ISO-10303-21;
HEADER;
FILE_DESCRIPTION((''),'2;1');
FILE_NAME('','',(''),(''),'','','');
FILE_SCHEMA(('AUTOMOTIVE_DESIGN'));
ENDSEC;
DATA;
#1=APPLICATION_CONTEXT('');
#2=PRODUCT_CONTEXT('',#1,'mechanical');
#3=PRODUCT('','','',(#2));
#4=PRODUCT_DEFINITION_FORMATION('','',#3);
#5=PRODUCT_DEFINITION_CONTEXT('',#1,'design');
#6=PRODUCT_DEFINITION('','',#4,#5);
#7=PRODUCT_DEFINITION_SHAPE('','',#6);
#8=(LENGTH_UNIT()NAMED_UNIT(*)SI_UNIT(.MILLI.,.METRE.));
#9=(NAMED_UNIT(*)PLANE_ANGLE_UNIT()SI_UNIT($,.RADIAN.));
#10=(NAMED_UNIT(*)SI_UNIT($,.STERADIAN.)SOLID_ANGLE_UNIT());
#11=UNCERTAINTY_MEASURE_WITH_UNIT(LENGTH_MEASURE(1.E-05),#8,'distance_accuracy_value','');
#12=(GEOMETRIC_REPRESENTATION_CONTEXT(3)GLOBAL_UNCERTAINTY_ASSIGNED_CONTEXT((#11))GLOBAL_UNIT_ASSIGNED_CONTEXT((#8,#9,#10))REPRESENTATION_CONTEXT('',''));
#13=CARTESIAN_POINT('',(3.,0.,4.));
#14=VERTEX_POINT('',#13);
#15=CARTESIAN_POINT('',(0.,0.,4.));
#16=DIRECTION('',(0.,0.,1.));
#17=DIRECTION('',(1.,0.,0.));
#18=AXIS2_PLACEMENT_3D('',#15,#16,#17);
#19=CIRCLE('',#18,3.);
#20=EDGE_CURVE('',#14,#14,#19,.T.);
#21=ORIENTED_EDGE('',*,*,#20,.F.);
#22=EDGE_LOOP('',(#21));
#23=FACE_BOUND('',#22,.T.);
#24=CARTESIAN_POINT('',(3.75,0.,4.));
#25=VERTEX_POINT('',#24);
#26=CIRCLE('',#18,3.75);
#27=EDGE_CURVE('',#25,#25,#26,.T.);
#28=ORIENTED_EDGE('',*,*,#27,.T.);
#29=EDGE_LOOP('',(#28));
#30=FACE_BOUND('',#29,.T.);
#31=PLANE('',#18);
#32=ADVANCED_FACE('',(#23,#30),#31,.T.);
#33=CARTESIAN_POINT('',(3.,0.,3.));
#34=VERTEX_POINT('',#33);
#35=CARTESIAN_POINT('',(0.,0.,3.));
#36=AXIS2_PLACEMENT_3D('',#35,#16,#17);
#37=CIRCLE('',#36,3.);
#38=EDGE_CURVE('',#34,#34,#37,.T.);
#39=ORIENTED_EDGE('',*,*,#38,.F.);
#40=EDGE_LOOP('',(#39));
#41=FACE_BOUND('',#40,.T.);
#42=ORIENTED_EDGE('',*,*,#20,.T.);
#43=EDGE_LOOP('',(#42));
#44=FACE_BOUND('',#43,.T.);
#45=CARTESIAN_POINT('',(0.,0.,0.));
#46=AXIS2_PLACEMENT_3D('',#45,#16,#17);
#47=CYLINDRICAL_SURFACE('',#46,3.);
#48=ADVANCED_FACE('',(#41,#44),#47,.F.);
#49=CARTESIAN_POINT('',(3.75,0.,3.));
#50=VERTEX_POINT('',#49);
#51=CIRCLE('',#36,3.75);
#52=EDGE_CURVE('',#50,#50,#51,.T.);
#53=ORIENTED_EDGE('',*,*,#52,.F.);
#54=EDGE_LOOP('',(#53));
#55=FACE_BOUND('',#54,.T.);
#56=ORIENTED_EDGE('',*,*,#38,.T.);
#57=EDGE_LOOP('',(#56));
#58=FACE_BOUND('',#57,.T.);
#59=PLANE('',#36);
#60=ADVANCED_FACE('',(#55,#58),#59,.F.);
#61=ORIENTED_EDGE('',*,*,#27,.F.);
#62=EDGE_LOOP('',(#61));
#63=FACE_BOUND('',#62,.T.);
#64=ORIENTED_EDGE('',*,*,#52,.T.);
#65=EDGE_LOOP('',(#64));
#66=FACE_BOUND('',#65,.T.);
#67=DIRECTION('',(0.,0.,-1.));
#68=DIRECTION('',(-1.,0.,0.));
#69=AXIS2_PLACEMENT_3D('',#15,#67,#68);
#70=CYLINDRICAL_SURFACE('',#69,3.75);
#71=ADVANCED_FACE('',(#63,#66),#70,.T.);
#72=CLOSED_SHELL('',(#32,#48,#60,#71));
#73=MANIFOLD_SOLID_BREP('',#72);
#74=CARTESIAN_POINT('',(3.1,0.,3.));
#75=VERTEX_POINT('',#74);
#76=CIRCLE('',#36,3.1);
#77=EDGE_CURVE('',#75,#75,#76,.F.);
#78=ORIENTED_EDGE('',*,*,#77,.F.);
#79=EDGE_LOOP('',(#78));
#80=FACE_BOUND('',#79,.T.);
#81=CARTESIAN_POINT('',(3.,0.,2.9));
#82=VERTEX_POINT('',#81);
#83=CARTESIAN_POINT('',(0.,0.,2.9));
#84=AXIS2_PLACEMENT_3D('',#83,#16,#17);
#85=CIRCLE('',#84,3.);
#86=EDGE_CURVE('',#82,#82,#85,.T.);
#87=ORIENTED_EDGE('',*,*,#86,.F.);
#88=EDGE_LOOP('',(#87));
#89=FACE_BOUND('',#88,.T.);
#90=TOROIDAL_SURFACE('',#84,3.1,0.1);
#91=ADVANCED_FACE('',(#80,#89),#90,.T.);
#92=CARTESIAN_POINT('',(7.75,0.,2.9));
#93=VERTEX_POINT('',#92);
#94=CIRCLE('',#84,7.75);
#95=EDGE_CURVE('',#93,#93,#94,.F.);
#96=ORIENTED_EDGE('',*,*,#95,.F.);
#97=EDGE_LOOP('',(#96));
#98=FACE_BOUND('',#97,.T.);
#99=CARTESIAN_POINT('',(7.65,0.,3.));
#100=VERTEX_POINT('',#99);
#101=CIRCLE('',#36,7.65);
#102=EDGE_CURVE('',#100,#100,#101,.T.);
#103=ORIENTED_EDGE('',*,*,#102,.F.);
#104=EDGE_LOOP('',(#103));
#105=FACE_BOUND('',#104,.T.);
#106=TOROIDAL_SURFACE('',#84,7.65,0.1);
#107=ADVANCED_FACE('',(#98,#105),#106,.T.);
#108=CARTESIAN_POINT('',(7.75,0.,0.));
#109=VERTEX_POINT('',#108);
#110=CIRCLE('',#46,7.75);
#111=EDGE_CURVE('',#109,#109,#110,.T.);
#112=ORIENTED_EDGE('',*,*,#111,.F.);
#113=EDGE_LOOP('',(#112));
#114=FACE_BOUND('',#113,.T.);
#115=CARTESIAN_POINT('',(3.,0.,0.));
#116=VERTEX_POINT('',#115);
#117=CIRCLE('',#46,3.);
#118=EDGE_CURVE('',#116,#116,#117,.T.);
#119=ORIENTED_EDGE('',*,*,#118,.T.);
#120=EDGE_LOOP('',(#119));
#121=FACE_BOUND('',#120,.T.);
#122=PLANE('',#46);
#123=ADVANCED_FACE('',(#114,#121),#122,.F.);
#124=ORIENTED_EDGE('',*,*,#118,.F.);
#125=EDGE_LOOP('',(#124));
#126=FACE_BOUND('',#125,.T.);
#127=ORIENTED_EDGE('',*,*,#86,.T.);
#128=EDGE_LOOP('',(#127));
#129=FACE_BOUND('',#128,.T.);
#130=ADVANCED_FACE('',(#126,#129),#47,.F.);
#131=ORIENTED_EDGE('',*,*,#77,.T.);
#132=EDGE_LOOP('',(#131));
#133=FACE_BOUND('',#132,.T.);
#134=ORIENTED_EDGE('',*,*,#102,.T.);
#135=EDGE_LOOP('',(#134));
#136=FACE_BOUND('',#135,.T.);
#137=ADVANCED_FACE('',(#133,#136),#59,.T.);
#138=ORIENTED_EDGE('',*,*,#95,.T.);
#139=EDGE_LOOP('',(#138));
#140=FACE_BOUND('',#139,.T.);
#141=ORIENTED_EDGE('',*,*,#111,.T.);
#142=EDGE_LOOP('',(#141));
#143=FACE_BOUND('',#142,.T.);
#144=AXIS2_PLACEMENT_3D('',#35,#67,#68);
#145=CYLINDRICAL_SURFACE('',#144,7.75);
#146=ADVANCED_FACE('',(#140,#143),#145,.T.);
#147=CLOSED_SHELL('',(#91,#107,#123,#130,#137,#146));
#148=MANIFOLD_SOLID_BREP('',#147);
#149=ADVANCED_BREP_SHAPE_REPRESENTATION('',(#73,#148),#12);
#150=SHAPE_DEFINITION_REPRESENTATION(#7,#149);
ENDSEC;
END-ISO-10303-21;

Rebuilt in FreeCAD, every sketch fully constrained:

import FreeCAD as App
import Part
import Sketcher
from FreeCAD import Vector


def edges_at(feature, points):
    """Names of the edges that pass closest to the given points."""
    edges = feature.Shape.Edges
    near = lambda p: min(range(len(edges)), key=lambda i: edges[i].distToShape(Part.Vertex(*p))[0])
    return sorted({f"Edge{near(p) + 1}" for p in points})

doc = App.newDocument("Part")
body = doc.addObject("PartDesign::Body", "Body")

# Sketch on XY plane
sketch1 = body.newObject("Sketcher::SketchObject", "Sketch")
sketch1.AttachmentSupport = (doc.getObject("XY_Plane"), [""])
sketch1.MapMode = "FlatFace"
sketch1.addGeometry(Part.Circle(Vector(0, 0, 0), Vector(0, 0, 1), 8), False)
sketch1.addConstraint([
    Sketcher.Constraint("Coincident", 0, 3, -1, 1),
    Sketcher.Constraint("Diameter", 0, 15.5),
])
pad1 = body.newObject("PartDesign::Pad", "Pad")
pad1.Profile = sketch1
pad1.Length = 3
body2 = doc.addObject("PartDesign::Body", "Body001")

# Sketch on XY plane
sketch2 = body2.newObject("Sketcher::SketchObject", "Sketch001")
sketch2.AttachmentSupport = (doc.getObject("XY_Plane001"), [""])
sketch2.MapMode = "FlatFace"
sketch2.AttachmentOffset = App.Placement(Vector(0, 0, 3), App.Rotation())
sketch2.addGeometry(Part.Circle(Vector(0, 0, 0), Vector(0, 0, 1), 3.8), False)
sketch2.addConstraint([
    Sketcher.Constraint("Coincident", 0, 3, -1, 1),
    Sketcher.Constraint("Diameter", 0, 7.5),
])
pad2 = body2.newObject("PartDesign::Pad", "Pad001")
pad2.Profile = sketch2
pad2.Length = 1
body3 = doc.addObject("PartDesign::Body", "Body002")

# Sketch on XY plane
sketch3 = body3.newObject("Sketcher::SketchObject", "Sketch002")
sketch3.AttachmentSupport = (doc.getObject("XY_Plane002"), [""])
sketch3.MapMode = "FlatFace"
sketch3.AttachmentOffset = App.Placement(Vector(0, 0, 4), App.Rotation())
sketch3.addGeometry(Part.Circle(Vector(0, 0, 0), Vector(0, 0, 1), 3), False)
sketch3.addConstraint([
    Sketcher.Constraint("Coincident", 0, 3, -1, 1),
    Sketcher.Constraint("Diameter", 0, 6.0),
])
pad3 = body3.newObject("PartDesign::Pad", "Pad002")
pad3.Profile = sketch3
pad3.Length = 12.667262
pad3.Reversed = True
doc.recompute()

body4 = doc.addObject("PartDesign::Body", "Body003")
body4.BaseFeature = body3
boolean = body.newObject("PartDesign::Boolean", "Boolean")
boolean.Type = "Cut"
boolean.addObjects([body4])
doc.recompute()

fillet = body.newObject("PartDesign::Fillet", "Fillet")
fillet.Base = (boolean, edges_at(boolean, [(-7.75, 0, 3), (-3, 0, 3)]))
fillet.Radius = 0.1
doc.recompute()

boolean2 = body2.newObject("PartDesign::Boolean", "Boolean001")
boolean2.Type = "Cut"
boolean2.addObjects([body3])

doc.recompute()
